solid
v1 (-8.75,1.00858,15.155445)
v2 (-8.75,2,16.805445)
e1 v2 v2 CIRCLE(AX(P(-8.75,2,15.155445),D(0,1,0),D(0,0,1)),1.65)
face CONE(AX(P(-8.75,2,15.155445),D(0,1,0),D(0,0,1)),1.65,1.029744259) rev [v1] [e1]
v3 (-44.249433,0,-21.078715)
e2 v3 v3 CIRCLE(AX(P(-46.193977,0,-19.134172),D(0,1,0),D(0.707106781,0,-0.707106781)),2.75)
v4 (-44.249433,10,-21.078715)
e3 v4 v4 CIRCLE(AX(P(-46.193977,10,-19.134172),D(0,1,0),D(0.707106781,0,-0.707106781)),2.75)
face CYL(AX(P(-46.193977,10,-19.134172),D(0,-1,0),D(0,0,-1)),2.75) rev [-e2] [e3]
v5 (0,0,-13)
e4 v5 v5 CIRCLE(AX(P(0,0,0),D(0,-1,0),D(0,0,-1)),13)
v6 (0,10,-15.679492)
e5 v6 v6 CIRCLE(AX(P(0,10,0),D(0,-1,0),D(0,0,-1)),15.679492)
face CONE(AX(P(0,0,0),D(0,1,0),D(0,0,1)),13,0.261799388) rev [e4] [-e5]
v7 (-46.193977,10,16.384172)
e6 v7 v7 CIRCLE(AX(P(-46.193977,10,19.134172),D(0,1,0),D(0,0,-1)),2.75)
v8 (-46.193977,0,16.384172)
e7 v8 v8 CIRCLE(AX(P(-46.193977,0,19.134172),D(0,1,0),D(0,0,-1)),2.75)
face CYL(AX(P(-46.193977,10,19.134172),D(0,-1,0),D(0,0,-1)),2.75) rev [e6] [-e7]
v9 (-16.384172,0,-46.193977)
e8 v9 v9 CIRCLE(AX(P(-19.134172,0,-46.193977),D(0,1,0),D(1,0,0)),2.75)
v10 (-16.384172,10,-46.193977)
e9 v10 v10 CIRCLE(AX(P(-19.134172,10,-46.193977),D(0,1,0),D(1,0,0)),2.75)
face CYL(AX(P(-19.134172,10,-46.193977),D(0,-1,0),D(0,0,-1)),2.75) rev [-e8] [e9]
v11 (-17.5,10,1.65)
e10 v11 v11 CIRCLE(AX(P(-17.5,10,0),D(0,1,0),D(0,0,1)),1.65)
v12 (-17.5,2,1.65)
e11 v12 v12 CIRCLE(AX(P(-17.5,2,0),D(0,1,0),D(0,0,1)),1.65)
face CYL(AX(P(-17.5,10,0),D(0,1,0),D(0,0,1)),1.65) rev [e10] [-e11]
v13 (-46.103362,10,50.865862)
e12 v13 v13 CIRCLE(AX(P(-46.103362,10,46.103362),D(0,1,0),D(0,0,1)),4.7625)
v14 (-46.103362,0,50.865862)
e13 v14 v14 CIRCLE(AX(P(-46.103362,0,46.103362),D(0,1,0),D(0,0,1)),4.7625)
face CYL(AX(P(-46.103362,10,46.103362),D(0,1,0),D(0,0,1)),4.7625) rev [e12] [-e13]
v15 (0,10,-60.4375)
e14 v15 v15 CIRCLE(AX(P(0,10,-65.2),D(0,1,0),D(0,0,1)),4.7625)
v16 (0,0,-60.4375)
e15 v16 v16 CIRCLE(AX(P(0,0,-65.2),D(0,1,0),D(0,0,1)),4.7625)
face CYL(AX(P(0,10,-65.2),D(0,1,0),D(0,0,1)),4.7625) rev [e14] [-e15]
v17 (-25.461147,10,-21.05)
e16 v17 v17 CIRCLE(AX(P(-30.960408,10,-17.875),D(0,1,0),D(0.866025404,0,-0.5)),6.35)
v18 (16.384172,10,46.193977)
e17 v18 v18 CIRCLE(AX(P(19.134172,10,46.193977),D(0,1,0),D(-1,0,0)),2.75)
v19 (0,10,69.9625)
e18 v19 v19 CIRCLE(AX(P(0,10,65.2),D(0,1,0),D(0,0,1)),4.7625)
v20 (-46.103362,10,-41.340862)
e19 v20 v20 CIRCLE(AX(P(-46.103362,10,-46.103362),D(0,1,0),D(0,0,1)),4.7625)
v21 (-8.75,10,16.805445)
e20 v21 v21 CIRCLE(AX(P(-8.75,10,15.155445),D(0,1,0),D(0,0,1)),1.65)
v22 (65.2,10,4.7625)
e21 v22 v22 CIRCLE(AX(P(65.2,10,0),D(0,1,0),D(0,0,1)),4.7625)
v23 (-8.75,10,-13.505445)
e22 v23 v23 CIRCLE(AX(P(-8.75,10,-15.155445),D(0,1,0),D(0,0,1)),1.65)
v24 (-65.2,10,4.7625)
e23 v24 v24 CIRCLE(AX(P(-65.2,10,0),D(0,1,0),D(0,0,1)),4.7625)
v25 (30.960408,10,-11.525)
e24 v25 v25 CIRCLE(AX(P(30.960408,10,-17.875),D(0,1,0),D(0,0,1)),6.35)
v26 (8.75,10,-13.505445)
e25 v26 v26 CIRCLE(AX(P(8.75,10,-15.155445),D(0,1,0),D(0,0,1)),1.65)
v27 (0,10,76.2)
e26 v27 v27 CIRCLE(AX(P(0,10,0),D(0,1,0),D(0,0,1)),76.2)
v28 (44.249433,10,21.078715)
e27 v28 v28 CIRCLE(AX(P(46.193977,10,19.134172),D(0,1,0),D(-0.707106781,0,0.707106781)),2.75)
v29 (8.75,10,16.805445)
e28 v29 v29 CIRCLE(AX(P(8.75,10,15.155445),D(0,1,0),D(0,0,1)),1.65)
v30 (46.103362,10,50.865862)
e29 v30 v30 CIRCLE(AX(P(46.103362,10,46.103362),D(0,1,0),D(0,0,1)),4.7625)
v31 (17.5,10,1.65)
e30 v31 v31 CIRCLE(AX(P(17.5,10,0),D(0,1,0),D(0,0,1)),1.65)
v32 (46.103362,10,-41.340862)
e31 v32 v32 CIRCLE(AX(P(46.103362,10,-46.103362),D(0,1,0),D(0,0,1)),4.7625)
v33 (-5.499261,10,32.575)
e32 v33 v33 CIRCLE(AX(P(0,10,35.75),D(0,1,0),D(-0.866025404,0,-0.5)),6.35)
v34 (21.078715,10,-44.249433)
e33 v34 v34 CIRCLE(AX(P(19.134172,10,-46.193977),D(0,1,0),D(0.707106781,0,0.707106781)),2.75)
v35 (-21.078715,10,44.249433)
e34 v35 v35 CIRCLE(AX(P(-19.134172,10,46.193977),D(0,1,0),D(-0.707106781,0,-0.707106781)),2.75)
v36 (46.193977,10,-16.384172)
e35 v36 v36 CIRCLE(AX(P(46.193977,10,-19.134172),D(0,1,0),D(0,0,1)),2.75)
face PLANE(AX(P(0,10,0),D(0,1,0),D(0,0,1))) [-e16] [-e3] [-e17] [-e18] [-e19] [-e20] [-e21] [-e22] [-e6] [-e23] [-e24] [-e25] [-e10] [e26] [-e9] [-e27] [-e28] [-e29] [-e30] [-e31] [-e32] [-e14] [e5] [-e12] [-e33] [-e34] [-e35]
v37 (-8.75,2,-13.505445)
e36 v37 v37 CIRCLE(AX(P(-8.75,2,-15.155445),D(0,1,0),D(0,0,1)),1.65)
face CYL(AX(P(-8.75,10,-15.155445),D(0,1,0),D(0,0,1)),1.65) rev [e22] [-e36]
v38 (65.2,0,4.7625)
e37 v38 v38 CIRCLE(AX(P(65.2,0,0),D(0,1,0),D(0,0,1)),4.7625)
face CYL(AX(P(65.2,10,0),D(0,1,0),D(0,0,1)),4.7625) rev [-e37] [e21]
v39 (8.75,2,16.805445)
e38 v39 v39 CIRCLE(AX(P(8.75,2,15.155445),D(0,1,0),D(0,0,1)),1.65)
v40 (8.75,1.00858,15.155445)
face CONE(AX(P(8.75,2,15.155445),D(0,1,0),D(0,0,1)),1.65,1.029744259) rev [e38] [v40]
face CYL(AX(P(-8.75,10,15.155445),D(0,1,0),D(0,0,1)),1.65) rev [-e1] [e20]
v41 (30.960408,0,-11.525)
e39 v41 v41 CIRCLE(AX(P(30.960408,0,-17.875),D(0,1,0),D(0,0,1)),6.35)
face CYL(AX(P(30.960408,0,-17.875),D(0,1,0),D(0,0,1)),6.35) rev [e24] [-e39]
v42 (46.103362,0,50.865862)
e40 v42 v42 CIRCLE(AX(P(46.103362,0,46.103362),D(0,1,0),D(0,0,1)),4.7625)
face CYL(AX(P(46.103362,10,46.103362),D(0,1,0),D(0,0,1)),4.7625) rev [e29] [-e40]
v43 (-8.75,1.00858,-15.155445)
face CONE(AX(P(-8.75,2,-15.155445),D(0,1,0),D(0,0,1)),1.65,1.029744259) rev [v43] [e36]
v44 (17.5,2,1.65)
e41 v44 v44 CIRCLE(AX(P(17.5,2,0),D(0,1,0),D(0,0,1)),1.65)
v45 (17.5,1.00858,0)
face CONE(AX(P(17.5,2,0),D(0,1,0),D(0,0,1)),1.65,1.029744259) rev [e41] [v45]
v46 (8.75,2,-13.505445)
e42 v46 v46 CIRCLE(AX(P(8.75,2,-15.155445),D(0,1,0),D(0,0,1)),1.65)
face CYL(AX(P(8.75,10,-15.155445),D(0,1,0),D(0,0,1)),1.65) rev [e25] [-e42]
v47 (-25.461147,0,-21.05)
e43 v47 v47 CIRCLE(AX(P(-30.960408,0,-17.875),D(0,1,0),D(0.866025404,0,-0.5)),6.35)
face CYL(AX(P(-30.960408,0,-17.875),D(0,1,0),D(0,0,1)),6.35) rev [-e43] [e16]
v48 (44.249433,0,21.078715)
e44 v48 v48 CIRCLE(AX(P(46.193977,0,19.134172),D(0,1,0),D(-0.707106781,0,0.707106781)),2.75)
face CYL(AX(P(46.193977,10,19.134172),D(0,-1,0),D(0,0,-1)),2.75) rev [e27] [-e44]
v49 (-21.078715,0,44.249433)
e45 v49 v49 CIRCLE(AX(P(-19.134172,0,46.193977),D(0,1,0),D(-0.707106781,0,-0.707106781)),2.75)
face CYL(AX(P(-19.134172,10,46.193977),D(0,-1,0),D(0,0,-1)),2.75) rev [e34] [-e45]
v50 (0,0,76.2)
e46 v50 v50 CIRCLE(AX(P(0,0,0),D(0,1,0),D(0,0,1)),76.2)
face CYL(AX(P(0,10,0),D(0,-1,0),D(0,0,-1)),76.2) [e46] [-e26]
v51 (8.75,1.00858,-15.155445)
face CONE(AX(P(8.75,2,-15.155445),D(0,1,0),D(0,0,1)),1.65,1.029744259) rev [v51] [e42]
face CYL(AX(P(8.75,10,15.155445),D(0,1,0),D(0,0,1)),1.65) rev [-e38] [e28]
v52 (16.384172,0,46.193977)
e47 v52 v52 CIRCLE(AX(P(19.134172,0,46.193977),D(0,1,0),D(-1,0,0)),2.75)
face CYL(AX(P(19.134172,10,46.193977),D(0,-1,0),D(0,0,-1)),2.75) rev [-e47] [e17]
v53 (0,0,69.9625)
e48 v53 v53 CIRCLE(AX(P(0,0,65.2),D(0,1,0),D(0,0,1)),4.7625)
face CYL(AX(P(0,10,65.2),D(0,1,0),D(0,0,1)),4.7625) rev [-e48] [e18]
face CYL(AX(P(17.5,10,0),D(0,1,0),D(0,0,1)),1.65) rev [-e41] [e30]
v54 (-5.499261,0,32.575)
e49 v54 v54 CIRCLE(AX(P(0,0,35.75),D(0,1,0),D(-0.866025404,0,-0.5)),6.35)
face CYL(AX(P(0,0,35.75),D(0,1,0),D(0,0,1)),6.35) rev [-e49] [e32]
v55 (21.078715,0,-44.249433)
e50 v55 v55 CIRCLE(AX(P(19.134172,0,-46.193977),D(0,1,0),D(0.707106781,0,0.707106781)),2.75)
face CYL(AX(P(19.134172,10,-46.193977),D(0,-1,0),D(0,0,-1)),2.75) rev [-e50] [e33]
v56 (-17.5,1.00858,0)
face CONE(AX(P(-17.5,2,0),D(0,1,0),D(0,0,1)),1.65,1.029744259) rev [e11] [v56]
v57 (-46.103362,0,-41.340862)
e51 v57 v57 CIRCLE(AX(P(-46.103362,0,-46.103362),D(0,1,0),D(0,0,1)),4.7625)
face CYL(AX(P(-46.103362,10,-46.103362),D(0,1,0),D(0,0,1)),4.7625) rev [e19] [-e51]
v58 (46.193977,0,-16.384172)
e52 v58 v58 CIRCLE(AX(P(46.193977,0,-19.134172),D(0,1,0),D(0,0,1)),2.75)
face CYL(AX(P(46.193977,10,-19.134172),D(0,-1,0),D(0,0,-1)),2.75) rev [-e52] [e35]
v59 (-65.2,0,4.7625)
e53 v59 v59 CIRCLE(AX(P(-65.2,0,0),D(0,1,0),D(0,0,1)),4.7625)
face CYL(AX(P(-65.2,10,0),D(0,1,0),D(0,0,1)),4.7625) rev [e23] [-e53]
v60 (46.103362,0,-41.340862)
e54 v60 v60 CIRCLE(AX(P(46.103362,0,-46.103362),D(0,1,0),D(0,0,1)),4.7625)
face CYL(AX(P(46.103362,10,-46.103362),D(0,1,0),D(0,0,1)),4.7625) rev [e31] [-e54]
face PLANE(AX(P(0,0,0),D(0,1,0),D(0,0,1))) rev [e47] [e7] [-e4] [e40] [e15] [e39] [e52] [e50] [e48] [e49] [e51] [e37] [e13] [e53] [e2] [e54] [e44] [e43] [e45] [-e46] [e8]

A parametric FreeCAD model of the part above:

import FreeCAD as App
import Part
import Sketcher
from FreeCAD import Vector
Q = App.Units.Quantity


def add_polygon(sketch, points):
    """Adds a closed chain of lines whose ends are joined by coincident constraints."""
    first, n = sketch.GeometryCount, len(points)
    for a, b in zip(points, points[1:] + points[:1]):
        sketch.addGeometry(Part.LineSegment(App.Vector(*a, 0), App.Vector(*b, 0)), False)
    for i in range(n):
        sketch.addConstraint(Sketcher.Constraint("Coincident", first + i, 2, first + (i + 1) % n, 1))

doc = App.newDocument("Part")
body = doc.addObject("PartDesign::Body", "Body")

# Sketch on XZ plane
sketch1 = doc.addObject("Sketcher::SketchObject", "Sketch")
body.addObject(sketch1)
sketch1.AttachmentSupport = (doc.XZ_Plane, [""])
sketch1.MapMode = "FlatFace"
sketch1.addGeometry(Part.Circle(Vector(0, 0, 0), Vector(0, 0, 1), 76.2), False)
sketch1.addConstraint([
    Sketcher.Constraint("Coincident", 0, 3, -1, 1),
    Sketcher.Constraint("Diameter", 0, 152.4),
])
pad1 = doc.addObject("PartDesign::Pad", "Pad")
body.addObject(pad1)
pad1.Profile = sketch1
pad1.Length = 10
pad1.Reversed = True

# Sketch on XY plane
sketch2 = doc.addObject("Sketcher::SketchObject", "Sketch001")
body.addObject(sketch2)
sketch2.AttachmentSupport = (doc.XY_Plane, [""])
sketch2.MapMode = "FlatFace"
add_polygon(sketch2, [(0, 10), (0, 0), (13, 0), (15.679492, 10)])  # lines 0-3
sketch2.addConstraint([
    Sketcher.Constraint("Vertical", 0),
    Sketcher.Constraint("Horizontal", 1),
    Sketcher.Constraint("Horizontal", 3),
    Sketcher.Constraint("Coincident", 0, 2, -1, 1),
    Sketcher.Constraint("DistanceX", 1, 1, 1, 2, 13.0),
    Sketcher.Constraint("DistanceY", 0, 2, 0, 1, 10.0),
    Sketcher.Constraint("Angle", 2, Q("75 deg")),
])
groove = doc.addObject("PartDesign::Groove", "Groove")
body.addObject(groove)
groove.Profile = sketch2
groove.ReferenceAxis = (sketch2, ["V_Axis"])
groove.Angle = 360

# Sketch on XZ plane
sketch3 = doc.addObject("Sketcher::SketchObject", "Sketch002")
body.addObject(sketch3)
sketch3.AttachmentSupport = (doc.XZ_Plane, [""])
sketch3.MapMode = "FlatFace"
sketch3.addGeometry(Part.Circle(Vector(46.193977, -19.134172, 0), Vector(0, 0, 1), 2.75), False)
sketch3.addConstraint([
    Sketcher.Constraint("Diameter", 0, 5.5),
    Sketcher.Constraint("DistanceY", 0, 3, -1, 1, 19.134172),
    Sketcher.Constraint("DistanceX", -1, 1, 0, 3, 46.193977),
])
pocket1 = doc.addObject("PartDesign::Pocket", "Pocket")
body.addObject(pocket1)
pocket1.Profile = sketch3
pocket1.Type = "ThroughAll"
doc.recompute()

polarpattern = doc.addObject("PartDesign::PolarPattern", "PolarPattern")
body.addObject(polarpattern)
polarpattern.Originals = [pocket1]
polarpattern.Axis = (doc.Y_Axis, [""])
polarpattern.Angle = 360
polarpattern.Occurrences = 8
body.Tip = polarpattern

# Sketch on XZ plane
sketch4 = doc.addObject("Sketcher::SketchObject", "Sketch003")
body.addObject(sketch4)
sketch4.AttachmentSupport = (doc.XZ_Plane, [""])
sketch4.MapMode = "FlatFace"
sketch4.AttachmentOffset = App.Placement(Vector(0, 0, -10), App.Rotation())
sketch4.addGeometry(Part.Circle(Vector(30.960408, -17.875, 0), Vector(0, 0, 1), 6.35), False)
sketch4.addConstraint([
    Sketcher.Constraint("Diameter", 0, 12.7),
    Sketcher.Constraint("DistanceY", 0, 3, -1, 1, 17.875),
    Sketcher.Constraint("DistanceX", -1, 1, 0, 3, 30.960408),
])
pocket2 = doc.addObject("PartDesign::Pocket", "Pocket001")
body.addObject(pocket2)
pocket2.Profile = sketch4
pocket2.Type = "ThroughAll"
pocket2.Reversed = True
doc.recompute()

polarpattern2 = doc.addObject("PartDesign::PolarPattern", "PolarPattern001")
body.addObject(polarpattern2)
polarpattern2.Originals = [pocket2]
polarpattern2.Axis = (doc.Y_Axis, [""])
polarpattern2.Angle = 360
polarpattern2.Occurrences = 3
body.Tip = polarpattern2

# Sketch on XZ plane
sketch5 = doc.addObject("Sketcher::SketchObject", "Sketch004")
body.addObject(sketch5)
sketch5.AttachmentSupport = (doc.XZ_Plane, [""])
sketch5.MapMode = "FlatFace"
sketch5.AttachmentOffset = App.Placement(Vector(0, 0, -10), App.Rotation())
sketch5.addGeometry(Part.Circle(Vector(-65.2, 0, 0), Vector(0, 0, 1), 4.7625), False)
sketch5.addConstraint([
    Sketcher.Constraint("PointOnObject", 0, 3, -1),
    Sketcher.Constraint("Diameter", 0, 9.525),
    Sketcher.Constraint("DistanceX", 0, 3, -1, 1, 65.2),
])
doc.recompute()
hole = doc.addObject("PartDesign::Hole", "Hole")
body.addObject(hole)
hole.Profile = sketch5
hole.ThreadType = "None"
hole.Diameter = 9.525
hole.DepthType = "ThroughAll"
hole.Reversed = True
doc.recompute()

polarpattern3 = doc.addObject("PartDesign::PolarPattern", "PolarPattern002")
body.addObject(polarpattern3)
polarpattern3.Originals = [hole]
polarpattern3.Axis = (doc.Y_Axis, [""])
polarpattern3.Angle = 360
polarpattern3.Occurrences = 8
body.Tip = polarpattern3

# Sketch on YZ plane
sketch6 = doc.addObject("Sketcher::SketchObject", "Sketch005")
body.addObject(sketch6)
sketch6.AttachmentSupport = (doc.YZ_Plane, [""])
sketch6.MapMode = "FlatFace"
sketch6.AttachmentOffset = App.Placement(Vector(0, 0, 17.5), App.Rotation())
add_polygon(sketch6, [(1.00858, 0), (10, 0), (10, 1.65), (2, 1.65)])  # lines 0-3
sketch6.addConstraint([
    Sketcher.Constraint("Horizontal", 0),
    Sketcher.Constraint("Vertical", 1),
    Sketcher.Constraint("Horizontal", 2),
    Sketcher.Constraint("PointOnObject", 0, 2, -1),
    Sketcher.Constraint("DistanceX", 2, 2, 2, 1, 8.0),
    Sketcher.Constraint("Angle", 3, Q("-121 deg")),
    Sketcher.Constraint("DistanceX", -1, 1, 0, 2, 10.0),
    Sketcher.Constraint("DistanceY", 1, 1, 1, 2, 1.65),
])
groove2 = doc.addObject("PartDesign::Groove", "Groove001")
body.addObject(groove2)
groove2.Profile = sketch6
groove2.ReferenceAxis = (sketch6, ["H_Axis"])
groove2.Angle = 360
doc.recompute()

polarpattern4 = doc.addObject("PartDesign::PolarPattern", "PolarPattern003")
body.addObject(polarpattern4)
polarpattern4.Originals = [groove2]
polarpattern4.Axis = (doc.Y_Axis, [""])
polarpattern4.Angle = 360
polarpattern4.Occurrences = 6
body.Tip = polarpattern4

doc.recompute()
